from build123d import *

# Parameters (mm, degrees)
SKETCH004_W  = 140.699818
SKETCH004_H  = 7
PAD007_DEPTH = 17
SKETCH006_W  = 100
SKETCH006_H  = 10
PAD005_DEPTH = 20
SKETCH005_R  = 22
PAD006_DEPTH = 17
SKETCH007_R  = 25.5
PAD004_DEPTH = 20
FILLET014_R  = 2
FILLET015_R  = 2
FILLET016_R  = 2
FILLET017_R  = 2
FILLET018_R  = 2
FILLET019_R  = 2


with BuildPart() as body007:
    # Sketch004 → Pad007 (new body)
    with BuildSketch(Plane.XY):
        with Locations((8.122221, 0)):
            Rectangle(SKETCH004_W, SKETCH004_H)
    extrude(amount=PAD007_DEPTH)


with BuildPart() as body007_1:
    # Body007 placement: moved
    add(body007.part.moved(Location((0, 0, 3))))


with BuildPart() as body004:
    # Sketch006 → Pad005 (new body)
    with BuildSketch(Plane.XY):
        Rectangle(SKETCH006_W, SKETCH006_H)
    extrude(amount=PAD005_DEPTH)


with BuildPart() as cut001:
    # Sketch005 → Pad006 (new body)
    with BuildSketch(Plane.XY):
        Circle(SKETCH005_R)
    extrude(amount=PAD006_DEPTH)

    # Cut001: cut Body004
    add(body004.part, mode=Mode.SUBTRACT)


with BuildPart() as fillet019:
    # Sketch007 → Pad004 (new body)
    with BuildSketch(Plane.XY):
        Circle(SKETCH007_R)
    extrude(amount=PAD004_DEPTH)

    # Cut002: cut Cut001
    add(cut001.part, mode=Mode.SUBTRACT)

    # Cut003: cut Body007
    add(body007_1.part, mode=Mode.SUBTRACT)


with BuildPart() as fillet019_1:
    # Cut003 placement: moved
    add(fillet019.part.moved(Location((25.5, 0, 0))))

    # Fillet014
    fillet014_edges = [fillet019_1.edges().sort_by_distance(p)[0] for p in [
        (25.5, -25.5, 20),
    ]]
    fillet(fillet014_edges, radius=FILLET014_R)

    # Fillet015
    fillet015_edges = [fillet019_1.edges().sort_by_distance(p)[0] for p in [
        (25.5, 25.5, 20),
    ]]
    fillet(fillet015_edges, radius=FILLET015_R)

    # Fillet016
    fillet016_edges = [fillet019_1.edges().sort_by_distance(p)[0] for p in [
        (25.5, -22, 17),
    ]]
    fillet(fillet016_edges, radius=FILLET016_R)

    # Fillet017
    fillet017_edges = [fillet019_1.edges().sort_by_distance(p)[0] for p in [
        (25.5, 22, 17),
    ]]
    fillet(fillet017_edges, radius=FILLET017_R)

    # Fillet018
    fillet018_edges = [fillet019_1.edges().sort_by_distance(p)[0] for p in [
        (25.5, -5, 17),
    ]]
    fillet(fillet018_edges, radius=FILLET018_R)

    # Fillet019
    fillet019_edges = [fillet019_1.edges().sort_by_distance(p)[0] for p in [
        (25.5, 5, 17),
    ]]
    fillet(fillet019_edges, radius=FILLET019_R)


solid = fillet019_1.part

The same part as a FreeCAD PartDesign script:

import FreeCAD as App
import Part
import Sketcher

V = App.Vector
Q = App.Units.Quantity


def edges_at(feature, points):
    """Names of the edges that pass closest to the given points."""
    edges = feature.Shape.Edges
    near = lambda p: min(range(len(edges)), key=lambda i: edges[i].distToShape(Part.Vertex(*p))[0])
    return sorted({f"Edge{near(p) + 1}" for p in points})

doc = App.newDocument("Part")
body = doc.addObject("PartDesign::Body", "Body")

# Sketch on XY plane
sketch1 = doc.addObject("Sketcher::SketchObject", "Sketch")
body.addObject(sketch1)
sketch1.AttachmentSupport = (doc.XY_Plane, [""])
sketch1.MapMode = "FlatFace"
sketch1.addGeometry([
    Part.LineSegment(V(-62, 4, 0), V(-62, -4, 0)),
    Part.LineSegment(V(-62, -4, 0), V(78, -4, 0)),
    Part.LineSegment(V(78, -4, 0), V(78, 4, 0)),
    Part.LineSegment(V(78, 4, 0), V(-62, 4, 0)),
], False)
sketch1.addConstraint([
    Sketcher.Constraint("Coincident", 0, 2, 1, 1),
    Sketcher.Constraint("Coincident", 1, 2, 2, 1),
    Sketcher.Constraint("Coincident", 2, 2, 3, 1),
    Sketcher.Constraint("Coincident", 3, 2, 0, 1),
    Sketcher.Constraint("Vertical", 0),
    Sketcher.Constraint("Horizontal", 1),
    Sketcher.Constraint("Vertical", 2),
    Sketcher.Constraint("Horizontal", 3),
    Sketcher.Constraint("DistanceY", 0, 2, 0, 1, Q("7 mm")),
    Sketcher.Constraint("DistanceY", 0, 2, -1, 1, Q("3.5 mm")),
    Sketcher.Constraint("DistanceX", 1, 1, 1, 2, Q("140.699818 mm")),
    Sketcher.Constraint("DistanceX", -1, 1, 1, 2, Q("78.47213 mm")),
])
pad1 = doc.addObject("PartDesign::Pad", "Pad")
body.addObject(pad1)
pad1.Profile = sketch1
pad1.Length = 17
body2 = doc.addObject("PartDesign::Body", "Body001")
doc.recompute()

body.Placement = App.Placement(V(0, 0, 3), App.Rotation(V(0, 0, 1), 0))
boolean = doc.addObject("PartDesign::Boolean", "Boolean")
body2.addObject(boolean)
boolean.Type = "Fuse"
boolean.addObjects([body])
body3 = doc.addObject("PartDesign::Body", "Body002")

# Sketch on XY plane
sketch2 = doc.addObject("Sketcher::SketchObject", "Sketch001")
body3.addObject(sketch2)
sketch2.AttachmentSupport = (doc.getObject("XY_Plane002"), [""])
sketch2.MapMode = "FlatFace"
sketch2.addGeometry([
    Part.LineSegment(V(-50, 5, 0), V(-50, -5, 0)),
    Part.LineSegment(V(-50, -5, 0), V(50, -5, 0)),
    Part.LineSegment(V(50, -5, 0), V(50, 5, 0)),
    Part.LineSegment(V(50, 5, 0), V(-50, 5, 0)),
], False)
sketch2.addConstraint([
    Sketcher.Constraint("Coincident", 0, 2, 1, 1),
    Sketcher.Constraint("Coincident", 1, 2, 2, 1),
    Sketcher.Constraint("Coincident", 2, 2, 3, 1),
    Sketcher.Constraint("Coincident", 3, 2, 0, 1),
    Sketcher.Constraint("Vertical", 0),
    Sketcher.Constraint("Horizontal", 1),
    Sketcher.Constraint("Vertical", 2),
    Sketcher.Constraint("Horizontal", 3),
    Sketcher.Constraint("Symmetric", 0, 2, 2, 2, -1, 1),
    Sketcher.Constraint("DistanceX", 1, 1, 1, 2, Q("100 mm")),
    Sketcher.Constraint("DistanceY", 0, 2, 0, 1, Q("10 mm")),
])
pad2 = doc.addObject("PartDesign::Pad", "Pad001")
body3.addObject(pad2)
pad2.Profile = sketch2
pad2.Length = 20
body4 = doc.addObject("PartDesign::Body", "Body003")
body4.AllowCompound = True

# Sketch on XY plane
sketch3 = doc.addObject("Sketcher::SketchObject", "Sketch002")
body4.addObject(sketch3)
sketch3.AttachmentSupport = (doc.getObject("XY_Plane003"), [""])
sketch3.MapMode = "FlatFace"
sketch3.addGeometry(Part.Circle(V(0, 0, 0), V(0, 0, 1), 22), False)
sketch3.addConstraint([
    Sketcher.Constraint("Coincident", 0, 3, -1, 1),
    Sketcher.Constraint("Diameter", 0, Q("44 mm")),
])
pad3 = doc.addObject("PartDesign::Pad", "Pad002")
body4.addObject(pad3)
pad3.Profile = sketch3
pad3.Length = 17
doc.recompute()

boolean2 = doc.addObject("PartDesign::Boolean", "Boolean001")
body4.addObject(boolean2)
boolean2.Type = "Cut"
boolean2.addObjects([body3])
body5 = doc.addObject("PartDesign::Body", "Body004")

# Sketch on XY plane
sketch4 = doc.addObject("Sketcher::SketchObject", "Sketch003")
body5.addObject(sketch4)
sketch4.AttachmentSupport = (doc.getObject("XY_Plane004"), [""])
sketch4.MapMode = "FlatFace"
sketch4.addGeometry(Part.Circle(V(0, 0, 0), V(0, 0, 1), 26), False)
sketch4.addConstraint([
    Sketcher.Constraint("Coincident", 0, 3, -1, 1),
    Sketcher.Constraint("Diameter", 0, Q("51 mm")),
])
pad4 = doc.addObject("PartDesign::Pad", "Pad003")
body5.addObject(pad4)
pad4.Profile = sketch4
pad4.Length = 20
doc.recompute()

boolean3 = doc.addObject("PartDesign::Boolean", "Boolean002")
body5.addObject(boolean3)
boolean3.Type = "Cut"
boolean3.addObjects([body4])
doc.recompute()

boolean4 = doc.addObject("PartDesign::Boolean", "Boolean003")
body5.addObject(boolean4)
boolean4.Type = "Cut"
boolean4.addObjects([body2])
body6 = doc.addObject("PartDesign::Body", "Body005")
doc.recompute()

body5.Placement = App.Placement(V(25.5, 0, 0), App.Rotation(V(0, 0, 1), 0))
boolean5 = doc.addObject("PartDesign::Boolean", "Boolean004")
body6.addObject(boolean5)
boolean5.Type = "Fuse"
boolean5.addObjects([body5])
doc.recompute()

fillet = doc.addObject("PartDesign::Fillet", "Fillet")
body6.addObject(fillet)
fillet.Base = (boolean5, edges_at(boolean5, [(25.5, -25.5, 20)]))
fillet.Radius = 2
doc.recompute()

fillet2 = doc.addObject("PartDesign::Fillet", "Fillet001")
body6.addObject(fillet2)
fillet2.Base = (fillet, edges_at(fillet, [(25.5, 25.5, 20)]))
fillet2.Radius = 2
doc.recompute()

fillet3 = doc.addObject("PartDesign::Fillet", "Fillet002")
body6.addObject(fillet3)
fillet3.Base = (fillet2, edges_at(fillet2, [(25.5, -22, 17)]))
fillet3.Radius = 2
doc.recompute()

fillet4 = doc.addObject("PartDesign::Fillet", "Fillet003")
body6.addObject(fillet4)
fillet4.Base = (fillet3, edges_at(fillet3, [(25.5, 22, 17)]))
fillet4.Radius = 2
doc.recompute()

fillet5 = doc.addObject("PartDesign::Fillet", "Fillet004")
body6.addObject(fillet5)
fillet5.Base = (fillet4, edges_at(fillet4, [(25.5, -5, 17)]))
fillet5.Radius = 2
doc.recompute()

fillet6 = doc.addObject("PartDesign::Fillet", "Fillet005")
body6.addObject(fillet6)
fillet6.Base = (fillet5, edges_at(fillet5, [(25.5, 5, 17)]))
fillet6.Radius = 2

doc.recompute()
